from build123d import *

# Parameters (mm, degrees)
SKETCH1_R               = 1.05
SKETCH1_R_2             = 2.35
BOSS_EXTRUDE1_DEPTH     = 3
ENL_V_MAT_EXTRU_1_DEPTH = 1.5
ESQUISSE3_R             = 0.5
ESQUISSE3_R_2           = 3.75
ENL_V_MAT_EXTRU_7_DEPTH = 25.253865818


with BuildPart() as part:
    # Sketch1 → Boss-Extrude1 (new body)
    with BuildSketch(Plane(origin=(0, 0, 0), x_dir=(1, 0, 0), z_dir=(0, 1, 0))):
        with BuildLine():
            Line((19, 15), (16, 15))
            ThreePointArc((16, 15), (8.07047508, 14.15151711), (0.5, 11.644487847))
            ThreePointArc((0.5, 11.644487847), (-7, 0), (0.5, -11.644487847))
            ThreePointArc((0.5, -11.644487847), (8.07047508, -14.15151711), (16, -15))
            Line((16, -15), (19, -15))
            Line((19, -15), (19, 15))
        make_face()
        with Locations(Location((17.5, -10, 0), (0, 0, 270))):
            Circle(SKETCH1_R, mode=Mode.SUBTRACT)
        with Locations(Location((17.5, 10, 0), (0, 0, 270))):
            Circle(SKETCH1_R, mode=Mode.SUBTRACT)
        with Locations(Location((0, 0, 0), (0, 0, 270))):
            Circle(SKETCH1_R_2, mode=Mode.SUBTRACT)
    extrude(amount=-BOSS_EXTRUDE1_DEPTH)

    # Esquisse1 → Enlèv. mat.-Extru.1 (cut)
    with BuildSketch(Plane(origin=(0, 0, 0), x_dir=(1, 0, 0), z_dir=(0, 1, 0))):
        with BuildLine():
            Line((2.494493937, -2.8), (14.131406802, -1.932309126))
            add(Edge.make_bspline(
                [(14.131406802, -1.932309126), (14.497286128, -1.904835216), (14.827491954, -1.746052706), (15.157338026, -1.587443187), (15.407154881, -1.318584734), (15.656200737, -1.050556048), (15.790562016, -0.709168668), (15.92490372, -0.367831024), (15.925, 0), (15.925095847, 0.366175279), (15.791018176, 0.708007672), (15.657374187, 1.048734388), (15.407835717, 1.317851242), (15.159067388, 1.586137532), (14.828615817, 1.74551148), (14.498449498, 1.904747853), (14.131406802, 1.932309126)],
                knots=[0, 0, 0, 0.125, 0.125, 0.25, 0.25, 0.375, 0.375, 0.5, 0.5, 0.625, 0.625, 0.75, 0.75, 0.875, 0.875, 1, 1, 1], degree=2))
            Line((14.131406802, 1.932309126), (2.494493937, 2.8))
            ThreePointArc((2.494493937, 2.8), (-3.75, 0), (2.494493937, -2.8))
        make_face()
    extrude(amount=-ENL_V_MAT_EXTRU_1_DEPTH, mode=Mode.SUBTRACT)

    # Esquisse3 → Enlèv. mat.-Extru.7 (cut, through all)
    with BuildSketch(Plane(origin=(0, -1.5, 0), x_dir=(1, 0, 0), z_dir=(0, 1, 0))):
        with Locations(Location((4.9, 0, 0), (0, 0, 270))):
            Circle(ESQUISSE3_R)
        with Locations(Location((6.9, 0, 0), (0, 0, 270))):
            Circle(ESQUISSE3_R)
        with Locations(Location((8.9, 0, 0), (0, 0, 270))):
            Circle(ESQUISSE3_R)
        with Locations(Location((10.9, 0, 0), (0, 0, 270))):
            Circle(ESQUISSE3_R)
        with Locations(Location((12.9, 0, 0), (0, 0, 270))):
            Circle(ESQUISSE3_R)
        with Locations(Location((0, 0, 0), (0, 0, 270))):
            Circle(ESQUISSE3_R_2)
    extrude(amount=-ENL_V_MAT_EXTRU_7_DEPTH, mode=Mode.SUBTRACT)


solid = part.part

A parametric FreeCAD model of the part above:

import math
import FreeCAD as App
import Part
import Sketcher

V = App.Vector

doc = App.newDocument("Part")
body = doc.addObject("PartDesign::Body", "Body")

# Sketch on XZ plane
sketch1 = body.newObject("Sketcher::SketchObject", "Sketch")
sketch1.AttachmentSupport = (doc.getObject("XZ_Plane"), [""])
sketch1.MapMode = "FlatFace"
sketch1.addGeometry(Part.LineSegment(V(19, -15, 0), V(16, -15, 0)), False)
sketch1.addGeometry(Part.ArcOfCircle(Part.Circle(V(16, 22.5, 0), V(0, 0, 1), 37.5), math.radians(-114), math.radians(-90)), False)
sketch1.addGeometry(Part.ArcOfCircle(Part.Circle(V(5.8, 0, 0), V(0, 0, 1), 12.8), math.radians(114), math.radians(246)), False)
sketch1.addGeometry(Part.ArcOfCircle(Part.Circle(V(16, -22.5, 0), V(0, 0, 1), 37.5), math.radians(90), math.radians(114)), False)
sketch1.addGeometry(Part.LineSegment(V(16, 15, 0), V(19, 15, 0)), False)
sketch1.addGeometry(Part.LineSegment(V(19, 15, 0), V(19, -15, 0)), False)
sketch1.addGeometry(Part.Circle(V(17.5, 10, 0), V(0, 0, 1), 1.1), False)
sketch1.addGeometry(Part.Circle(V(0, 0, 0), V(0, 0, 1), 2.4), False)
sketch1.addGeometry(Part.Circle(V(17.5, -10, 0), V(0, 0, 1), 1.1), False)
sketch1.addConstraint(Sketcher.Constraint("Tangent", 0, 2, 1, 2))
sketch1.addConstraint(Sketcher.Constraint("Tangent", 1, 1, 2, 2))
sketch1.addConstraint(Sketcher.Constraint("Tangent", 2, 1, 3, 2))
sketch1.addConstraint(Sketcher.Constraint("Tangent", 3, 1, 4, 1))
sketch1.addConstraint(Sketcher.Constraint("Coincident", 4, 2, 5, 1))
sketch1.addConstraint(Sketcher.Constraint("Coincident", 5, 2, 0, 1))
sketch1.addConstraint(Sketcher.Constraint("Horizontal", 0))
sketch1.addConstraint(Sketcher.Constraint("Horizontal", 4))
sketch1.addConstraint(Sketcher.Constraint("Vertical", 5))
sketch1.addConstraint(Sketcher.Constraint("Coincident", 7, 3, -1, 1))
sketch1.addConstraint(Sketcher.Constraint("Equal", 1, 3))
sketch1.addConstraint(Sketcher.Constraint("Equal", 6, 8))
sketch1.addConstraint(Sketcher.Constraint("Symmetric", 1, 3, 3, 3, -1))
sketch1.addConstraint(Sketcher.Constraint("Symmetric", 6, 3, 8, 3, -1))
sketch1.addConstraint(Sketcher.Constraint("Diameter", 6, 2.1))
sketch1.addConstraint(Sketcher.Constraint("Diameter", 7, 4.7))
sketch1.addConstraint(Sketcher.Constraint("DistanceX", 0, 2, 0, 1, 3.0))
sketch1.addConstraint(Sketcher.Constraint("DistanceY", 5, 2, 5, 1, 30.0))
sketch1.addConstraint(Sketcher.Constraint("DistanceX", -1, 1, 1, 3, 16.0))
sketch1.addConstraint(Sketcher.Constraint("DistanceY", -1, 1, 6, 3, 10.0))
sketch1.addConstraint(Sketcher.Constraint("DistanceX", 1, 1, 8, 3, 17.0))
sketch1.addConstraint(Sketcher.Constraint("DistanceX", -1, 1, 6, 3, 17.5))
sketch1.addConstraint(Sketcher.Constraint("Radius", 1, 37.47706))
pad1 = body.newObject("PartDesign::Pad", "Pad")
pad1.Profile = sketch1
pad1.Length = 3

# Sketch on XZ plane
sketch2 = body.newObject("Sketcher::SketchObject", "Sketch001")
sketch2.AttachmentSupport = (doc.getObject("XZ_Plane"), [""])
sketch2.MapMode = "FlatFace"
sketch2.addGeometry(Part.LineSegment(V(2.494494, 2.8, 0), V(14.131407, 1.932309, 0)), False)
sketch2.addGeometry(Part.BSplineCurve([V(14.131407, 1.932309, 0), V(14.497286, 1.904835, 0), V(14.827492, 1.746053, 0), V(15.157338, 1.587443, 0), V(15.407155, 1.318585, 0), V(15.656201, 1.050556, 0), V(15.790562, 0.709169, 0), V(15.924904, 0.367831, 0), V(15.925, 0, 0), V(15.925096, -0.366175, 0), V(15.791018, -0.708008, 0), V(15.657374, -1.048734, 0), V(15.407836, -1.317851, 0), V(15.159067, -1.586138, 0), V(14.828616, -1.745511, 0), V(14.498449, -1.904748, 0), V(14.131407, -1.932309, 0)], [3, 2, 2, 2, 2, 2, 2, 2, 3], [0, 0.125, 0.25, 0.375, 0.5, 0.625, 0.75, 0.875, 1], False, 2, [1, 1, 1, 1, 1, 1, 1, 1, 1, 1, 1, 1, 1, 1, 1, 1, 1], False), False)
sketch2.addGeometry(Part.LineSegment(V(14.131407, -1.932309, 0), V(2.494494, -2.8, 0)), False)
sketch2.addGeometry(Part.ArcOfCircle(Part.Circle(V(0, 0, 0), V(0, 0, 1), 3.75), math.radians(48.302453), math.radians(311.697547)), False)
sketch2.addConstraint(Sketcher.Constraint("Block", 1))
sketch2.addConstraint(Sketcher.Constraint("Coincident", 0, 2, 1, 1))
sketch2.addConstraint(Sketcher.Constraint("Coincident", 1, 2, 2, 1))
sketch2.addConstraint(Sketcher.Constraint("Coincident", 2, 2, 3, 2))
sketch2.addConstraint(Sketcher.Constraint("Coincident", 3, 1, 0, 1))
sketch2.addConstraint(Sketcher.Constraint("Coincident", 3, 3, -1, 1))
sketch2.addConstraint(Sketcher.Constraint("Vertical", 2, 2, 3, 1))
sketch2.addConstraint(Sketcher.Constraint("Radius", 3, 3.75))
sketch2.addConstraint(Sketcher.Constraint("DistanceY", 2, 2, -1, 1, 2.8))
pocket1 = body.newObject("PartDesign::Pocket", "Pocket")
pocket1.Profile = sketch2
pocket1.Length = 1.5
pocket1.Reversed = True

# Sketch on XZ plane
sketch3 = body.newObject("Sketcher::SketchObject", "Sketch002")
sketch3.AttachmentSupport = (doc.getObject("XZ_Plane"), [""])
sketch3.MapMode = "FlatFace"
sketch3.AttachmentOffset = App.Placement(V(0, 0, 1.5), App.Rotation())
sketch3.addGeometry(Part.Circle(V(4.9, 0, 0), V(0, 0, 1), 0.5), False)
sketch3.addGeometry(Part.Circle(V(6.9, 0, 0), V(0, 0, 1), 0.5), False)
sketch3.addGeometry(Part.Circle(V(8.9, 0, 0), V(0, 0, 1), 0.5), False)
sketch3.addGeometry(Part.Circle(V(10.9, 0, 0), V(0, 0, 1), 0.5), False)
sketch3.addGeometry(Part.Circle(V(12.9, 0, 0), V(0, 0, 1), 0.5), False)
sketch3.addGeometry(Part.Circle(V(0, 0, 0), V(0, 0, 1), 3.8), False)
sketch3.addConstraint(Sketcher.Constraint("Coincident", 5, 3, -1, 1))
sketch3.addConstraint(Sketcher.Constraint("Equal", 0, 1))
sketch3.addConstraint(Sketcher.Constraint("Equal", 1, 2))
sketch3.addConstraint(Sketcher.Constraint("Equal", 2, 3))
sketch3.addConstraint(Sketcher.Constraint("Equal", 3, 4))
sketch3.addConstraint(Sketcher.Constraint("PointOnObject", 0, 3, -1))
sketch3.addConstraint(Sketcher.Constraint("PointOnObject", 1, 3, -1))
sketch3.addConstraint(Sketcher.Constraint("PointOnObject", 2, 3, -1))
sketch3.addConstraint(Sketcher.Constraint("PointOnObject", 3, 3, -1))
sketch3.addConstraint(Sketcher.Constraint("PointOnObject", 4, 3, -1))
sketch3.addConstraint(Sketcher.Constraint("Diameter", 0, 1.0))
sketch3.addConstraint(Sketcher.Constraint("Diameter", 5, 7.5))
sketch3.addConstraint(Sketcher.Constraint("DistanceX", 0, 3, 1, 3, 2.0))
sketch3.addConstraint(Sketcher.Constraint("DistanceX", 1, 3, 2, 3, 2.0))
sketch3.addConstraint(Sketcher.Constraint("DistanceX", 2, 3, 3, 3, 2.0))
sketch3.addConstraint(Sketcher.Constraint("DistanceX", 3, 3, 4, 3, 2.0))
sketch3.addConstraint(Sketcher.Constraint("DistanceX", -1, 1, 0, 3, 4.9))
pocket2 = body.newObject("PartDesign::Pocket", "Pocket001")
pocket2.Profile = sketch3
pocket2.Type = "ThroughAll"
pocket2.Reversed = True

doc.recompute()
